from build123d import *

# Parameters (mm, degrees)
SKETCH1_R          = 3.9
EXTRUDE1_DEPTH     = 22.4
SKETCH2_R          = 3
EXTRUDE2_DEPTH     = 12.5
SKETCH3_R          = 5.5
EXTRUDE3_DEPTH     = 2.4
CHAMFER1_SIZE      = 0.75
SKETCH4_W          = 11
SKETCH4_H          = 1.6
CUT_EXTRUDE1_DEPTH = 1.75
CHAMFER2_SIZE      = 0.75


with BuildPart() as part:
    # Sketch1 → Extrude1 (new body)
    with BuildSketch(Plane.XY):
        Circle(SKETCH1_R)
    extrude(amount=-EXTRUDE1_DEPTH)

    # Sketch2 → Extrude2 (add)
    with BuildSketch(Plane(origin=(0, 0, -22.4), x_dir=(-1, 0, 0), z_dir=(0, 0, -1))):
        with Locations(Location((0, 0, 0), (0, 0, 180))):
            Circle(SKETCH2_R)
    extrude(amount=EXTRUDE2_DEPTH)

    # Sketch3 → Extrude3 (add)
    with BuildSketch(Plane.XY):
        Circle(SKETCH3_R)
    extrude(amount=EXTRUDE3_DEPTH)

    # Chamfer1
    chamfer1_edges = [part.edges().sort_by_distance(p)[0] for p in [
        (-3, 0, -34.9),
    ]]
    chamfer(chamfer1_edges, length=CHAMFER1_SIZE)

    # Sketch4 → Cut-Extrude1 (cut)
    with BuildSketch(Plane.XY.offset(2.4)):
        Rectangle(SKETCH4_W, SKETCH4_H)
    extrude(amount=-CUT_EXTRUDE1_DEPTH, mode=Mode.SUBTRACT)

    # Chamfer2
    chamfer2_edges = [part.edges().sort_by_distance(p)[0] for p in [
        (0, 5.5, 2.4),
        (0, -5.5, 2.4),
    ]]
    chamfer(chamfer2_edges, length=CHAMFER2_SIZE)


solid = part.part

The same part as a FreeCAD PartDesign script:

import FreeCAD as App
import Part
import Sketcher
Q = App.Units.Quantity


def edges_at(feature, points):
    """Names of the edges that pass closest to the given points."""
    edges = feature.Shape.Edges
    near = lambda p: min(range(len(edges)), key=lambda i: edges[i].distToShape(Part.Vertex(*p))[0])
    return sorted({f"Edge{near(p) + 1}" for p in points})


def add_polygon(sketch, points):
    """Adds a closed chain of lines whose ends are joined by coincident constraints."""
    first, n = sketch.GeometryCount, len(points)
    for a, b in zip(points, points[1:] + points[:1]):
        sketch.addGeometry(Part.LineSegment(App.Vector(*a, 0), App.Vector(*b, 0)), False)
    for i in range(n):
        sketch.addConstraint(Sketcher.Constraint("Coincident", first + i, 2, first + (i + 1) % n, 1))

doc = App.newDocument("Part")
body = doc.addObject("PartDesign::Body", "Body")

sketch1 = body.newObject("Sketcher::SketchObject", "Sketch")
sketch1.AttachmentSupport = (doc.getObject("XY_Plane"), [""])
sketch1.MapMode = "FlatFace"
sketch1.addGeometry(Part.Circle(App.Vector(0, 0, 0), App.Vector(0, 0, 1), 3.9), False)
sketch1.addConstraint([
    Sketcher.Constraint("Coincident", 0, 3, -1, 1),
    Sketcher.Constraint("Diameter", 0, Q("7.8 mm")),
])
pad1 = body.newObject("PartDesign::Pad", "Pad")
pad1.Profile = sketch1
pad1.Length = 22.4
pad1.Reversed = True

sketch2 = body.newObject("Sketcher::SketchObject", "Sketch001")
sketch2.AttachmentSupport = (doc.getObject("XY_Plane"), [""])
sketch2.MapMode = "FlatFace"
sketch2.AttachmentOffset = App.Placement(App.Vector(0, 0, -22.4), App.Rotation())
sketch2.addGeometry(Part.Circle(App.Vector(0, 0, 0), App.Vector(0, 0, 1), 3), False)
sketch2.addConstraint([
    Sketcher.Constraint("Coincident", 0, 3, -1, 1),
    Sketcher.Constraint("Diameter", 0, Q("6 mm")),
])
pad2 = body.newObject("PartDesign::Pad", "Pad001")
pad2.Profile = sketch2
pad2.Length = 12.5
pad2.Reversed = True

sketch3 = body.newObject("Sketcher::SketchObject", "Sketch002")
sketch3.AttachmentSupport = (doc.getObject("XY_Plane"), [""])
sketch3.MapMode = "FlatFace"
sketch3.addGeometry(Part.Circle(App.Vector(0, 0, 0), App.Vector(0, 0, 1), 6), False)
sketch3.addConstraint([
    Sketcher.Constraint("Coincident", 0, 3, -1, 1),
    Sketcher.Constraint("Diameter", 0, Q("11 mm")),
])
pad3 = body.newObject("PartDesign::Pad", "Pad002")
pad3.Profile = sketch3
pad3.Length = 2.4
doc.recompute()

chamfer = body.newObject("PartDesign::Chamfer", "Chamfer")
chamfer.Base = (pad3, edges_at(pad3, [(-3, 0, -34.9)]))
chamfer.Size = 0.75

sketch4 = body.newObject("Sketcher::SketchObject", "Sketch003")
sketch4.AttachmentSupport = (doc.getObject("XY_Plane"), [""])
sketch4.MapMode = "FlatFace"
sketch4.AttachmentOffset = App.Placement(App.Vector(0, 0, 2.4), App.Rotation())
add_polygon(sketch4, [(-5.5, 0.8), (-5.5, -0.8), (5.5, -0.8), (5.5, 0.8)])
sketch4.addConstraint([
    Sketcher.Constraint("Vertical", 0),
    Sketcher.Constraint("Horizontal", 1),
    Sketcher.Constraint("Vertical", 2),
    Sketcher.Constraint("Horizontal", 3),
    Sketcher.Constraint("Symmetric", 0, 2, 2, 2, -1, 1),
    Sketcher.Constraint("DistanceX", 1, 1, 1, 2, Q("11 mm")),
    Sketcher.Constraint("DistanceY", 0, 2, 0, 1, Q("1.6 mm")),
])
pocket1 = body.newObject("PartDesign::Pocket", "Pocket")
pocket1.Profile = sketch4
pocket1.Length = 1.75
doc.recompute()

chamfer2 = body.newObject("PartDesign::Chamfer", "Chamfer001")
chamfer2.Base = (pocket1, edges_at(pocket1, [(0, 5.5, 2.4), (0, -5.5, 2.4)]))
chamfer2.Size = 0.75

doc.recompute()
